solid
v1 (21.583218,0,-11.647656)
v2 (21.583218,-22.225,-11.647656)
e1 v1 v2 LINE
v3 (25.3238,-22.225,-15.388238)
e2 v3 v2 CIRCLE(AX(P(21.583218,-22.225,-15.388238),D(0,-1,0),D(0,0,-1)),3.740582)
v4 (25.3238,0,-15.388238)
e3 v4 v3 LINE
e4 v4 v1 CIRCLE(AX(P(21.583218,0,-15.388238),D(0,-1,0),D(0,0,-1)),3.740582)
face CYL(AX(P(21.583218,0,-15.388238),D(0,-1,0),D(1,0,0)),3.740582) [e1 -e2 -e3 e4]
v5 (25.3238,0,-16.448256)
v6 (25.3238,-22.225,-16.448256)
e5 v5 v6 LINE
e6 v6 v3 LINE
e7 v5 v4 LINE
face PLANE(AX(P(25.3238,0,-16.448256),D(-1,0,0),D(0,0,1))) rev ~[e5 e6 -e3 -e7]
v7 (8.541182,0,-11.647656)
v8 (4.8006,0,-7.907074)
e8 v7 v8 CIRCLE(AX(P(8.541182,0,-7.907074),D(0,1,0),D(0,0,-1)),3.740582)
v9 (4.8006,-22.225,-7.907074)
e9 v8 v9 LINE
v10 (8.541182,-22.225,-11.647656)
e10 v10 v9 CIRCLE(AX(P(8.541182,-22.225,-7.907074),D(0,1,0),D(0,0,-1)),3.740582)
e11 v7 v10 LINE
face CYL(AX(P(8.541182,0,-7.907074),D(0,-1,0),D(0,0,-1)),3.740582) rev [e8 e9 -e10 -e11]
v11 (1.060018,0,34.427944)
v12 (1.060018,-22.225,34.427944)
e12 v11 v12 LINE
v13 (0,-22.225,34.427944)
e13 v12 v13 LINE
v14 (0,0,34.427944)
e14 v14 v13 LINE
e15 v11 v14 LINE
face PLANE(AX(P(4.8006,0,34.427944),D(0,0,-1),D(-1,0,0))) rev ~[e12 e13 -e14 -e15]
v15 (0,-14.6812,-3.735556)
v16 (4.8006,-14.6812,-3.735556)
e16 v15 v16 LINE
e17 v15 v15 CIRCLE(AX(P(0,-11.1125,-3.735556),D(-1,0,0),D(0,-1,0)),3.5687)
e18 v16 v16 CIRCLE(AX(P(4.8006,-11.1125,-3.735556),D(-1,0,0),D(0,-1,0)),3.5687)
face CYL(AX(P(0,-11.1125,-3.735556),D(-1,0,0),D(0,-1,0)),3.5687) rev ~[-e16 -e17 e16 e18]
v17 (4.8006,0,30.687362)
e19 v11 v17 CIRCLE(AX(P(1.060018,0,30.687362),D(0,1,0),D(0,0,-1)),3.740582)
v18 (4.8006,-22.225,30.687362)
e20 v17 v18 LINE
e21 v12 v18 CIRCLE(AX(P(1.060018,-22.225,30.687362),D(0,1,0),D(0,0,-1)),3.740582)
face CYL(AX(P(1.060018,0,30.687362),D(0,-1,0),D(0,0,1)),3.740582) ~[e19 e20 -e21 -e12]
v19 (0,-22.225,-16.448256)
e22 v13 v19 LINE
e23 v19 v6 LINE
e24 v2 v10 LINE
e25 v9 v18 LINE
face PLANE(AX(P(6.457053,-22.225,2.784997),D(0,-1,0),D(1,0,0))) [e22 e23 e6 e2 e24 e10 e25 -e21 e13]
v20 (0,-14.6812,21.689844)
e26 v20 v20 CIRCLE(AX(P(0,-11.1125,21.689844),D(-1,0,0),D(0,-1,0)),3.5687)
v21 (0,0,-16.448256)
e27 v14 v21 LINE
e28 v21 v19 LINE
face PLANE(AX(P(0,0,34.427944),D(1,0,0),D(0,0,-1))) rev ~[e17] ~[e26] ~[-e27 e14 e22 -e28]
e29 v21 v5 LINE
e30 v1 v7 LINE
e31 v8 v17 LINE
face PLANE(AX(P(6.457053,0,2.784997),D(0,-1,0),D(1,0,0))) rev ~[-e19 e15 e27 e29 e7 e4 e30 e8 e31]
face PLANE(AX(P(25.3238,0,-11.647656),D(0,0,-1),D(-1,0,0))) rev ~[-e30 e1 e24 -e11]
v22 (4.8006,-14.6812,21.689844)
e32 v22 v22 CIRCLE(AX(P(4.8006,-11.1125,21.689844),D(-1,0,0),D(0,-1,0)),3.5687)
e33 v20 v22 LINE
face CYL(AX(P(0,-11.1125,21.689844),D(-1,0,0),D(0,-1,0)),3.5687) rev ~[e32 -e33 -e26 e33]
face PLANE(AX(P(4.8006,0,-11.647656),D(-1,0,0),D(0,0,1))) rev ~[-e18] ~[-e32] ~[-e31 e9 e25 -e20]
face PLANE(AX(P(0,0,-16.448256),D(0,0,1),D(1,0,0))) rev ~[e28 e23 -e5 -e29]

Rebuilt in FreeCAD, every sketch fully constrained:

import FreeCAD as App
import Part
import Sketcher

V = App.Vector
Q = App.Units.Quantity


def edges_at(feature, points):
    """Names of the edges that pass closest to the given points."""
    edges = feature.Shape.Edges
    near = lambda p: min(range(len(edges)), key=lambda i: edges[i].distToShape(Part.Vertex(*p))[0])
    return sorted({f"Edge{near(p) + 1}" for p in points})

doc = App.newDocument("Part")
params = doc.addObject("Spreadsheet::Sheet", "Params")
for row, (alias, value) in enumerate([
    ("sketch1_width", "0.189 in"),
    ("sketch1_width2", "0.997 in"),
    ("sketch1_height", "2.003 in"),
    ("pad1_length", "0.875 in"),
    ("fillet_radius", "3.740582 mm"),
    ("sketch2_diameter", "0.281 in"),
    ("pocket1_length", "0.189 in"),
], start=1):
    params.set(f"A{row}", alias)
    params.set(f"B{row}", "=" + value)
    params.setAlias(f"B{row}", alias)

body = doc.addObject("PartDesign::Body", "Body")

# Sketch on XZ plane
sketch1 = body.newObject("Sketcher::SketchObject", "Sketch")
sketch1.AttachmentSupport = (doc.getObject("XZ_Plane"), [""])
sketch1.MapMode = "FlatFace"
sketch1.addGeometry(Part.LineSegment(V(4.8006, 34.427944, 0), V(0, 34.427944, 0)), False)
sketch1.addGeometry(Part.LineSegment(V(0, 34.427944, 0), V(0, -16.448256, 0)), False)
sketch1.addGeometry(Part.LineSegment(V(0, -16.448256, 0), V(25.3238, -16.448256, 0)), False)
sketch1.addGeometry(Part.LineSegment(V(25.3238, -16.448256, 0), V(25.3238, -11.647656, 0)), False)
sketch1.addGeometry(Part.LineSegment(V(25.3238, -11.647656, 0), V(4.8006, -11.647656, 0)), False)
sketch1.addGeometry(Part.LineSegment(V(4.8006, -11.647656, 0), V(4.8006, 34.427944, 0)), False)
sketch1.addConstraint(Sketcher.Constraint("Coincident", 0, 2, 1, 1))
sketch1.addConstraint(Sketcher.Constraint("Coincident", 1, 2, 2, 1))
sketch1.addConstraint(Sketcher.Constraint("Coincident", 2, 2, 3, 1))
sketch1.addConstraint(Sketcher.Constraint("Coincident", 3, 2, 4, 1))
sketch1.addConstraint(Sketcher.Constraint("Coincident", 4, 2, 5, 1))
sketch1.addConstraint(Sketcher.Constraint("Coincident", 5, 2, 0, 1))
sketch1.addConstraint(Sketcher.Constraint("Horizontal", 0))
sketch1.addConstraint(Sketcher.Constraint("Vertical", 1))
sketch1.addConstraint(Sketcher.Constraint("Horizontal", 2))
sketch1.addConstraint(Sketcher.Constraint("Vertical", 3))
sketch1.addConstraint(Sketcher.Constraint("Horizontal", 4))
sketch1.addConstraint(Sketcher.Constraint("Vertical", 5))
sketch1.addConstraint(Sketcher.Constraint("PointOnObject", 0, 2, -2))
sketch1.addConstraint(Sketcher.Constraint("Equal", 0, 3))
sketch1.addConstraint(Sketcher.Constraint("DistanceX", 0, 2, 0, 1, Q("0.189 in")))
sketch1.addConstraint(Sketcher.Constraint("DistanceX", 2, 1, 2, 2, Q("0.997 in")))
sketch1.addConstraint(Sketcher.Constraint("DistanceY", 1, 2, 1, 1, Q("2.003 in")))
sketch1.addConstraint(Sketcher.Constraint("DistanceY", -1, 1, 0, 2, 34.427944))
sketch1.setExpression("Constraints[14]", "Params.sketch1_width")
sketch1.setExpression("Constraints[15]", "Params.sketch1_width2")
sketch1.setExpression("Constraints[16]", "Params.sketch1_height")
pad1 = body.newObject("PartDesign::Pad", "Pad")
pad1.Profile = sketch1
pad1.setExpression("Length", "Params.pad1_length")
doc.recompute()

fillet = body.newObject("PartDesign::Fillet", "Fillet")
fillet.Base = (pad1, edges_at(pad1, [(4.801, -11.113, 34.428), (4.801, -11.113, -11.648), (25.324, -11.113, -11.648)]))
fillet.setExpression("Radius", "Params.fillet_radius")

# Sketch on YZ plane
sketch2 = body.newObject("Sketcher::SketchObject", "Sketch001")
sketch2.AttachmentSupport = (doc.getObject("YZ_Plane"), [""])
sketch2.MapMode = "FlatFace"
sketch2.addGeometry(Part.Circle(V(-11.1125, 21.689844, 0), V(0, 0, 1), 3.5687), False)
sketch2.addGeometry(Part.Circle(V(-11.1125, -3.735556, 0), V(0, 0, 1), 3.5687), False)
sketch2.addConstraint(Sketcher.Constraint("Equal", 0, 1))
sketch2.addConstraint(Sketcher.Constraint("Vertical", 0, 3, 1, 3))
sketch2.addConstraint(Sketcher.Constraint("Diameter", 0, Q("0.281 in")))
sketch2.addConstraint(Sketcher.Constraint("DistanceX", 0, 3, -1, 1, Q("0.4375 in")))
sketch2.addConstraint(Sketcher.Constraint("DistanceY", 1, 3, 0, 3, Q("1.001 in")))
sketch2.addConstraint(Sketcher.Constraint("DistanceY", -1, 1, 0, 3, 21.689844))
sketch2.setExpression("Constraints[2]", "Params.sketch2_diameter")
pocket1 = body.newObject("PartDesign::Pocket", "Pocket")
pocket1.Profile = sketch2
pocket1.setExpression("Length", "Params.pocket1_length")
pocket1.Reversed = True

doc.recompute()
